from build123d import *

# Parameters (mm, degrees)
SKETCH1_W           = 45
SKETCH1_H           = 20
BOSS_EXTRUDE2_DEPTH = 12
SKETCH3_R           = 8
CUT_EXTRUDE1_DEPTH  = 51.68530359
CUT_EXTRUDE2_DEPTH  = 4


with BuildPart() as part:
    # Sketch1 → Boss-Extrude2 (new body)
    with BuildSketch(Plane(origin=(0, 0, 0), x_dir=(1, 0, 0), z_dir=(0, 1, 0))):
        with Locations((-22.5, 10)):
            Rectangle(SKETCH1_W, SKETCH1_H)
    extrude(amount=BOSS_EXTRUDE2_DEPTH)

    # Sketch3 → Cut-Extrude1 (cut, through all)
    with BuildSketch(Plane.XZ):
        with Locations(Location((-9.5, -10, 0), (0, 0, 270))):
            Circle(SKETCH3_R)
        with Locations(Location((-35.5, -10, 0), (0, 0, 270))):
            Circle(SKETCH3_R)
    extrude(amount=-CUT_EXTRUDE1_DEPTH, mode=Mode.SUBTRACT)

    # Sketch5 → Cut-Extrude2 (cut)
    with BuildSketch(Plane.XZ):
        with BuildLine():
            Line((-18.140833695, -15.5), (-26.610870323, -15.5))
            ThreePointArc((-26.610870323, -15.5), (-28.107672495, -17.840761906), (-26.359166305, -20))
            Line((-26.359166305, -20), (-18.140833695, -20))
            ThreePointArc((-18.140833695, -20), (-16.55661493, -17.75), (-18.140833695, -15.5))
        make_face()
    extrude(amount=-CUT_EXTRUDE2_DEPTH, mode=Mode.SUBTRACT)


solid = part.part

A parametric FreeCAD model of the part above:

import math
import FreeCAD as App
import Part
import Sketcher
from FreeCAD import Vector
Q = App.Units.Quantity


def add_polygon(sketch, points):
    """Adds a closed chain of lines whose ends are joined by coincident constraints."""
    first, n = sketch.GeometryCount, len(points)
    for a, b in zip(points, points[1:] + points[:1]):
        sketch.addGeometry(Part.LineSegment(App.Vector(*a, 0), App.Vector(*b, 0)), False)
    for i in range(n):
        sketch.addConstraint(Sketcher.Constraint("Coincident", first + i, 2, first + (i + 1) % n, 1))

doc = App.newDocument("Part")
body = doc.addObject("PartDesign::Body", "Body")

sketch1 = doc.addObject("Sketcher::SketchObject", "Sketch")
body.addObject(sketch1)
sketch1.AttachmentSupport = (doc.XZ_Plane, [""])
sketch1.MapMode = "FlatFace"
add_polygon(sketch1, [(-45, -20), (-45, 0), (0, 0), (0, -20)])
sketch1.addConstraint(Sketcher.Constraint("Vertical", 0))
sketch1.addConstraint(Sketcher.Constraint("Horizontal", 1))
sketch1.addConstraint(Sketcher.Constraint("Vertical", 2))
sketch1.addConstraint(Sketcher.Constraint("Horizontal", 3))
sketch1.addConstraint(Sketcher.Constraint("Coincident", 1, 2, -1, 1))
sketch1.addConstraint(Sketcher.Constraint("DistanceX", 1, 1, 1, 2, Q("45 mm")))
sketch1.addConstraint(Sketcher.Constraint("DistanceY", 0, 1, 0, 2, Q("20 mm")))
pad1 = doc.addObject("PartDesign::Pad", "Pad")
body.addObject(pad1)
pad1.Profile = sketch1
pad1.Length = 12
pad1.Reversed = True

sketch2 = doc.addObject("Sketcher::SketchObject", "Sketch001")
body.addObject(sketch2)
sketch2.AttachmentSupport = (doc.XZ_Plane, [""])
sketch2.MapMode = "FlatFace"
sketch2.addGeometry(Part.Circle(Vector(-10, -10, 0), Vector(0, 0, 1), 8), False)
sketch2.addGeometry(Part.Circle(Vector(-36, -10, 0), Vector(0, 0, 1), 8), False)
sketch2.addConstraint(Sketcher.Constraint("Equal", 0, 1))
sketch2.addConstraint(Sketcher.Constraint("Horizontal", 0, 3, 1, 3))
sketch2.addConstraint(Sketcher.Constraint("Diameter", 0, Q("16 mm")))
sketch2.addConstraint(Sketcher.Constraint("DistanceY", 0, 3, -1, 1, Q("10 mm")))
sketch2.addConstraint(Sketcher.Constraint("DistanceX", 1, 3, 0, 3, Q("26 mm")))
sketch2.addConstraint(Sketcher.Constraint("DistanceX", 0, 3, -1, 1, Q("9.5 mm")))
pocket1 = doc.addObject("PartDesign::Pocket", "Pocket")
body.addObject(pocket1)
pocket1.Profile = sketch2
pocket1.Type = "ThroughAll"

sketch3 = doc.addObject("Sketcher::SketchObject", "Sketch002")
body.addObject(sketch3)
sketch3.AttachmentSupport = (doc.XZ_Plane, [""])
sketch3.MapMode = "FlatFace"
sketch3.addGeometry(Part.LineSegment(Vector(-18.1, -15.5, 0), Vector(-26.6, -15.5, 0)), False)
sketch3.addGeometry(Part.ArcOfCircle(Part.Circle(Vector(-25.7, -17.7, 0), Vector(0, 0, 1), 2.4), math.radians(112), math.radians(255)), False)
sketch3.addGeometry(Part.LineSegment(Vector(-26.4, -20, 0), Vector(-18.1, -20, 0)), False)
sketch3.addGeometry(Part.ArcOfCircle(Part.Circle(Vector(-18.9, -17.8, 0), Vector(0, 0, 1), 2.4), math.radians(-70), math.radians(70)), False)
sketch3.addConstraint(Sketcher.Constraint("Coincident", 0, 2, 1, 1))
sketch3.addConstraint(Sketcher.Constraint("Coincident", 1, 2, 2, 1))
sketch3.addConstraint(Sketcher.Constraint("Coincident", 2, 2, 3, 1))
sketch3.addConstraint(Sketcher.Constraint("Coincident", 3, 2, 0, 1))
sketch3.addConstraint(Sketcher.Constraint("Horizontal", 0))
sketch3.addConstraint(Sketcher.Constraint("Horizontal", 2))
sketch3.addConstraint(Sketcher.Constraint("Vertical", 2, 2, 3, 2))
sketch3.addConstraint(Sketcher.Constraint("DistanceY", 1, 2, -1, 1, Q("20 mm")))
sketch3.addConstraint(Sketcher.Constraint("DistanceY", 0, 2, -1, 1, Q("15.5 mm")))
sketch3.addConstraint(Sketcher.Constraint("Radius", 3, Q("2.3899 mm")))
sketch3.addConstraint(Sketcher.Constraint("Radius", 1, Q("2.374978 mm")))
sketch3.addConstraint(Sketcher.Constraint("DistanceX", 1, 3, -1, 1, Q("25.736401 mm")))
sketch3.addConstraint(Sketcher.Constraint("DistanceX", 0, 2, 0, 1, Q("8.470037 mm")))
sketch3.addConstraint(Sketcher.Constraint("DistanceX", 2, 1, 2, 2, Q("8.218333 mm")))
pocket2 = doc.addObject("PartDesign::Pocket", "Pocket001")
body.addObject(pocket2)
pocket2.Profile = sketch3
pocket2.Length = 4

doc.recompute()
